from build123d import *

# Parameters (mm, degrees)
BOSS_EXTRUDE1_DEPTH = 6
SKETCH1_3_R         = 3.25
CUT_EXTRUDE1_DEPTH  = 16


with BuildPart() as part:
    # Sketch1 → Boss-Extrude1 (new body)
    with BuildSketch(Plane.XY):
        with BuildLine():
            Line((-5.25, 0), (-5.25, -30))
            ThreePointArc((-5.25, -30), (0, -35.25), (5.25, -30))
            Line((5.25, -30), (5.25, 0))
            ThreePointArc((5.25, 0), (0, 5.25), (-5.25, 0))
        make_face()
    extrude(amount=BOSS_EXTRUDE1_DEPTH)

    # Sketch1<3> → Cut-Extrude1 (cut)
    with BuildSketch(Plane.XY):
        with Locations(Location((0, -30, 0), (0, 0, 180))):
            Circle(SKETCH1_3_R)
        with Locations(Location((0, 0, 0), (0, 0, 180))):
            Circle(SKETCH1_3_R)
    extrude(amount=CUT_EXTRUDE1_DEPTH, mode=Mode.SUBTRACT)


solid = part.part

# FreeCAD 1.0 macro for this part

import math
import FreeCAD as App
import Part
import Sketcher
from FreeCAD import Vector
Q = App.Units.Quantity

doc = App.newDocument("Part")
body = doc.addObject("PartDesign::Body", "Body")

# Sketch on XY plane
sketch1 = doc.addObject("Sketcher::SketchObject", "Sketch")
body.addObject(sketch1)
sketch1.AttachmentSupport = (doc.XY_Plane, [""])
sketch1.MapMode = "FlatFace"
sketch1.addGeometry(Part.LineSegment(Vector(-5, 0, 0), Vector(-5, -30, 0)), False)
sketch1.addGeometry(Part.ArcOfCircle(Part.Circle(Vector(0, -30, 0), Vector(0, 0, 1), 5), math.radians(180), math.radians(360)), False)
sketch1.addGeometry(Part.LineSegment(Vector(5, -30, 0), Vector(5, 0, 0)), False)
sketch1.addGeometry(Part.ArcOfCircle(Part.Circle(Vector(0, 0, 0), Vector(0, 0, 1), 5), math.radians(0), math.radians(180)), False)
sketch1.addConstraint(Sketcher.Constraint("Tangent", 0, 2, 1, 1))
sketch1.addConstraint(Sketcher.Constraint("Tangent", 1, 2, 2, 1))
sketch1.addConstraint(Sketcher.Constraint("Tangent", 2, 2, 3, 1))
sketch1.addConstraint(Sketcher.Constraint("Tangent", 3, 2, 0, 1))
sketch1.addConstraint(Sketcher.Constraint("Vertical", 0))
sketch1.addConstraint(Sketcher.Constraint("Vertical", 2))
sketch1.addConstraint(Sketcher.Constraint("Coincident", 3, 3, -1, 1))
sketch1.addConstraint(Sketcher.Constraint("DistanceY", 0, 2, 0, 1, Q("30 mm")))
sketch1.addConstraint(Sketcher.Constraint("Radius", 1, Q("5.25 mm")))
pad1 = doc.addObject("PartDesign::Pad", "Pad")
body.addObject(pad1)
pad1.Profile = sketch1
pad1.Length = 6

# Sketch on XY plane
sketch2 = doc.addObject("Sketcher::SketchObject", "Sketch001")
body.addObject(sketch2)
sketch2.AttachmentSupport = (doc.XY_Plane, [""])
sketch2.MapMode = "FlatFace"
sketch2.addGeometry(Part.Circle(Vector(0, -30, 0), Vector(0, 0, 1), 3.2), False)
sketch2.addGeometry(Part.Circle(Vector(0, 0, 0), Vector(0, 0, 1), 3.2), False)
sketch2.addConstraint(Sketcher.Constraint("Coincident", 1, 3, -1, 1))
sketch2.addConstraint(Sketcher.Constraint("Equal", 0, 1))
sketch2.addConstraint(Sketcher.Constraint("PointOnObject", 0, 3, -2))
sketch2.addConstraint(Sketcher.Constraint("Diameter", 0, Q("6.5 mm")))
sketch2.addConstraint(Sketcher.Constraint("DistanceY", 0, 3, -1, 1, Q("30 mm")))
pocket1 = doc.addObject("PartDesign::Pocket", "Pocket")
body.addObject(pocket1)
pocket1.Profile = sketch2
pocket1.Length = 16
pocket1.Reversed = True

doc.recompute()
